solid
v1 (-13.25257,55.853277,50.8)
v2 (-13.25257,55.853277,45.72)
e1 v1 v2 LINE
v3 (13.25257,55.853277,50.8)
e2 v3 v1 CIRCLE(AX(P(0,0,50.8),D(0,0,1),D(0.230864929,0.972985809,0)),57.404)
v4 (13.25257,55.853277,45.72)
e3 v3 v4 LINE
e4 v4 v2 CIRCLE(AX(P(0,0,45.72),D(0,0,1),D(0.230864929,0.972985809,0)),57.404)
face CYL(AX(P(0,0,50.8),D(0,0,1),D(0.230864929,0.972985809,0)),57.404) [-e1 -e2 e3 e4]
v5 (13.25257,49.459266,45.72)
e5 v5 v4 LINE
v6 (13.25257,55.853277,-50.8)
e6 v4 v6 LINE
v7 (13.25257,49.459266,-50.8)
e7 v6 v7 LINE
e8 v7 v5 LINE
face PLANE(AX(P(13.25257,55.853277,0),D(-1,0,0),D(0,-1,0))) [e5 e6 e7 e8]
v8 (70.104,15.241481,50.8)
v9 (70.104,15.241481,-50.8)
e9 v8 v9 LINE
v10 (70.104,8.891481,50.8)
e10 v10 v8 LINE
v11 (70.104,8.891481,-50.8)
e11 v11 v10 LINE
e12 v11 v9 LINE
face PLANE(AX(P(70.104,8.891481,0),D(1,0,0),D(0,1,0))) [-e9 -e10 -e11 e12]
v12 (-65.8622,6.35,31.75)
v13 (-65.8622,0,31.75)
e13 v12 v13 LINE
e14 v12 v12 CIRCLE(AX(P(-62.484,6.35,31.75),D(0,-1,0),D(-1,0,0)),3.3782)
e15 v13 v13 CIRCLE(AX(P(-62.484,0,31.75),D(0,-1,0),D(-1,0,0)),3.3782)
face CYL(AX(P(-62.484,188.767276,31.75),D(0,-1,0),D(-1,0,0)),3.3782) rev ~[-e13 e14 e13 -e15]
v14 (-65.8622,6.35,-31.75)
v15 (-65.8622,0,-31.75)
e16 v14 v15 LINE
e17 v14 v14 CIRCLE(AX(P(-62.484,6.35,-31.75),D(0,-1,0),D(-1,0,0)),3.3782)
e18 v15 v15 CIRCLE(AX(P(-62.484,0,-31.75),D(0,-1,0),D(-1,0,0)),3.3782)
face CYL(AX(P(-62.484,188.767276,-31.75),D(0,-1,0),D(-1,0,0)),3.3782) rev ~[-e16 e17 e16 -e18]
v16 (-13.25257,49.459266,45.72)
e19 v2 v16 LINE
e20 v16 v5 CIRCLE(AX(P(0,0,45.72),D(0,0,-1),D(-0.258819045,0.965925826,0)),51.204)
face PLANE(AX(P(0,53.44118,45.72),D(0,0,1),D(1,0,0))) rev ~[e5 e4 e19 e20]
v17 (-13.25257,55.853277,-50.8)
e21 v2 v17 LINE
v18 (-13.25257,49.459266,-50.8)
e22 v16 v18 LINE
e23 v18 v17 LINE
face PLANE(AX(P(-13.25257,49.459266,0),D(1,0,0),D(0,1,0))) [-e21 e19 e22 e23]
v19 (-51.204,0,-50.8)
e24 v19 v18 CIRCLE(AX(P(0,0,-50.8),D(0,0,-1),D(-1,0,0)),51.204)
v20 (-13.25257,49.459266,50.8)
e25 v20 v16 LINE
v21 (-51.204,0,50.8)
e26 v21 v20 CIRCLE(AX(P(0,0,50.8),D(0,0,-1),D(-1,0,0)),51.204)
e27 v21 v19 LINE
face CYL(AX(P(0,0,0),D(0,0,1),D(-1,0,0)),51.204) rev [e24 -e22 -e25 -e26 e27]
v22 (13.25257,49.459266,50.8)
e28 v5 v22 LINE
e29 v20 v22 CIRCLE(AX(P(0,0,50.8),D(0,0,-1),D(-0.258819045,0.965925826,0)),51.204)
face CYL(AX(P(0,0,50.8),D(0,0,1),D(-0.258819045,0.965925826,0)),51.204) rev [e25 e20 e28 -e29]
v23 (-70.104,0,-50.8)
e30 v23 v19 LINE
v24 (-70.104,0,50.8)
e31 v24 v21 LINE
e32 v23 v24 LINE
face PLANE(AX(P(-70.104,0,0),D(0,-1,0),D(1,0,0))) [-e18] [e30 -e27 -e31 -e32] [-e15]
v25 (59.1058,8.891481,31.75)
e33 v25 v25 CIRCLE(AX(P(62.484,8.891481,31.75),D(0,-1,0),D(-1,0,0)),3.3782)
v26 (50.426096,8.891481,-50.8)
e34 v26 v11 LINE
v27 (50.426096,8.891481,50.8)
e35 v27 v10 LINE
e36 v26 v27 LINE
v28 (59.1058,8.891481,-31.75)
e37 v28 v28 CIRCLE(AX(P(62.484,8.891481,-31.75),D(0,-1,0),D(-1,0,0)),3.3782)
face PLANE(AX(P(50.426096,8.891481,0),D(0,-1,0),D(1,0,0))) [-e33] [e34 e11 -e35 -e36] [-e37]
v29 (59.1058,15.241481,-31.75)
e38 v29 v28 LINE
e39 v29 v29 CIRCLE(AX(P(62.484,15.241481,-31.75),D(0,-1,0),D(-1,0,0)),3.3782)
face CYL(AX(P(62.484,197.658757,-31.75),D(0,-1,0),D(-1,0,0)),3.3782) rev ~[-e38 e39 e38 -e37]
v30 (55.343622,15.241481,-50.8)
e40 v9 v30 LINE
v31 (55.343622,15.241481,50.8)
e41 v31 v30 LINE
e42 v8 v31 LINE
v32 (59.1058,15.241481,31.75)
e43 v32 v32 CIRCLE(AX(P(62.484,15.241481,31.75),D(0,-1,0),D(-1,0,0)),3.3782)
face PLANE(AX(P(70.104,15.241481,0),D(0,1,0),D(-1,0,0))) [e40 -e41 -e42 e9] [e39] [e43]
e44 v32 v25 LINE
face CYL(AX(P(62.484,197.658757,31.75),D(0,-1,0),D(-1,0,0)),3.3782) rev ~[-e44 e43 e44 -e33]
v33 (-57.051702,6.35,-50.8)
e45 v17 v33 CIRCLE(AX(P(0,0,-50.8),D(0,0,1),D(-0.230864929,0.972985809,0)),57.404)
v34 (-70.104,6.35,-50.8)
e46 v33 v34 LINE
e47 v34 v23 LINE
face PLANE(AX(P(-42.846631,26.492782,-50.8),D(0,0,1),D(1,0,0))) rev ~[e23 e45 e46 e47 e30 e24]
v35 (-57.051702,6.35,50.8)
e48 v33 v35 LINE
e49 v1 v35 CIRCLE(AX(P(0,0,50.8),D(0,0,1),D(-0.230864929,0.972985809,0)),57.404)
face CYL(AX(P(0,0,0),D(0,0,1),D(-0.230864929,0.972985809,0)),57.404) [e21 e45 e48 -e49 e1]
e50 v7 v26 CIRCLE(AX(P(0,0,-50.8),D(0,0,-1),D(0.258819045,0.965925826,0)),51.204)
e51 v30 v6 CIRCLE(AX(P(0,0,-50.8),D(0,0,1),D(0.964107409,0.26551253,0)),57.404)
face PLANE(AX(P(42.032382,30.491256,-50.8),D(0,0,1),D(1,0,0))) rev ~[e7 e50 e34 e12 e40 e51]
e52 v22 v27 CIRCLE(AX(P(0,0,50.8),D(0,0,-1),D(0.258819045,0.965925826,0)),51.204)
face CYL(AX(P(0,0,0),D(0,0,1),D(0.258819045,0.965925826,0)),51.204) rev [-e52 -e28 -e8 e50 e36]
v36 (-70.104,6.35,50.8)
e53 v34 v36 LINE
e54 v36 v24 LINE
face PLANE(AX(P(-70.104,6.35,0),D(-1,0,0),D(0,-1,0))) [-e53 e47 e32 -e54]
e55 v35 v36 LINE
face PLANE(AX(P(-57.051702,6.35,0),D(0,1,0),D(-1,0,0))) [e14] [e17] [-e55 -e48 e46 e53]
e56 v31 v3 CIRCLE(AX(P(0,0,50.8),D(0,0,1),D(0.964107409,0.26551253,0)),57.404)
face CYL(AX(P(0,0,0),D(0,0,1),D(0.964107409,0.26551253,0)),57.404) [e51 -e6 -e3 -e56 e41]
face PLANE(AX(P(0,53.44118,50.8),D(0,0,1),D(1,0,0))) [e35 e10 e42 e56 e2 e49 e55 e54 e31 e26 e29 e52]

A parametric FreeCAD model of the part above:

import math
import FreeCAD as App
import Part
import Sketcher
Q = App.Units.Quantity

doc = App.newDocument("Part")
params = doc.addObject("Spreadsheet::Sheet", "Params")
for row, (alias, value) in enumerate([
    ("sketch1_radius", "2.26 in"),
    ("sketch1_height", "0.25 in"),
    ("pad1_length", "4 in"),
    ("sketch2_radius", "2.26 in"),
    ("sketch2_height", "0.25 in"),
    ("pad2_length", "4 in"),
    ("sketch3_radius", "2.26 in"),
    ("pad3_length", "0.2 in"),
    ("sketch4_diameter", "0.266 in"),
    ("hole_diameter", "0.266 in"),
    ("sketch5_diameter", "0.266 in"),
    ("hole2_diameter", "0.266 in"),
], start=1):
    params.set(f"A{row}", alias)
    params.set(f"B{row}", "=" + value)
    params.setAlias(f"B{row}", alias)

body = doc.addObject("PartDesign::Body", "Body")

# Sketch on XY plane
sketch1 = doc.addObject("Sketcher::SketchObject", "Sketch")
body.addObject(sketch1)
sketch1.AttachmentSupport = (doc.XY_Plane, [""])
sketch1.MapMode = "FlatFace"
sketch1.addGeometry(Part.ArcOfCircle(Part.Circle(App.Vector(0, 0, 0), App.Vector(0, 0, 1), 57), math.radians(103), math.radians(174)), False)
sketch1.addGeometry(Part.LineSegment(App.Vector(-57, 6, 0), App.Vector(-70, 6, 0)), False)
sketch1.addGeometry(Part.LineSegment(App.Vector(-70, 6, 0), App.Vector(-70, 0, 0)), False)
sketch1.addGeometry(Part.LineSegment(App.Vector(-70, 0, 0), App.Vector(-51, 0, 0)), False)
sketch1.addGeometry(Part.ArcOfCircle(Part.Circle(App.Vector(0, 0, 0), App.Vector(0, 0, 1), 51), math.radians(105), math.radians(180)), False)
sketch1.addGeometry(Part.LineSegment(App.Vector(-13, 49, 0), App.Vector(-13, 56, 0)), False)
sketch1.addConstraint(Sketcher.Constraint("Coincident", 0, 2, 1, 1))
sketch1.addConstraint(Sketcher.Constraint("Coincident", 1, 2, 2, 1))
sketch1.addConstraint(Sketcher.Constraint("Coincident", 2, 2, 3, 1))
sketch1.addConstraint(Sketcher.Constraint("Coincident", 3, 2, 4, 2))
sketch1.addConstraint(Sketcher.Constraint("Coincident", 4, 1, 5, 1))
sketch1.addConstraint(Sketcher.Constraint("Coincident", 5, 2, 0, 1))
sketch1.addConstraint(Sketcher.Constraint("Horizontal", 1))
sketch1.addConstraint(Sketcher.Constraint("Vertical", 2))
sketch1.addConstraint(Sketcher.Constraint("Horizontal", 3))
sketch1.addConstraint(Sketcher.Constraint("Vertical", 5))
sketch1.addConstraint(Sketcher.Constraint("Coincident", 0, 3, -1, 1))
sketch1.addConstraint(Sketcher.Constraint("Coincident", 4, 3, -1, 1))
sketch1.addConstraint(Sketcher.Constraint("PointOnObject", 2, 2, -1))
sketch1.addConstraint(Sketcher.Constraint("Radius", 0, Q("2.26 in")))
sketch1.addConstraint(Sketcher.Constraint("DistanceY", 2, 2, 2, 1, Q("0.25 in")))
sketch1.addConstraint(Sketcher.Constraint("DistanceX", 1, 2, -1, 1, Q("2.76 in")))
sketch1.addConstraint(Sketcher.Constraint("Radius", 4, Q("51.204 mm")))
sketch1.addConstraint(Sketcher.Constraint("DistanceY", 5, 1, 5, 2, Q("6.394011 mm")))
sketch1.setExpression("Constraints[13]", "Params.sketch1_radius")
sketch1.setExpression("Constraints[14]", "Params.sketch1_height")
pad1 = doc.addObject("PartDesign::Pad", "Pad")
body.addObject(pad1)
pad1.Profile = sketch1
pad1.setExpression("Length", "Params.pad1_length")
pad1.Midplane = True
body2 = doc.addObject("PartDesign::Body", "Body001")

# Sketch on XY plane
sketch2 = doc.addObject("Sketcher::SketchObject", "Sketch001")
body2.addObject(sketch2)
sketch2.AttachmentSupport = (doc.getObject("XY_Plane001"), [""])
sketch2.MapMode = "FlatFace"
sketch2.addGeometry(Part.LineSegment(App.Vector(13, 56, 0), App.Vector(13, 49, 0)), False)
sketch2.addGeometry(Part.ArcOfCircle(Part.Circle(App.Vector(0, 0, 0), App.Vector(0, 0, 1), 51), math.radians(10), math.radians(75)), False)
sketch2.addGeometry(Part.LineSegment(App.Vector(50, 9, 0), App.Vector(70, 9, 0)), False)
sketch2.addGeometry(Part.LineSegment(App.Vector(70, 9, 0), App.Vector(70, 15, 0)), False)
sketch2.addGeometry(Part.LineSegment(App.Vector(70, 15, 0), App.Vector(55, 15, 0)), False)
sketch2.addGeometry(Part.ArcOfCircle(Part.Circle(App.Vector(0, 0, 0), App.Vector(0, 0, 1), 57), math.radians(15), math.radians(77)), False)
sketch2.addConstraint(Sketcher.Constraint("Coincident", 0, 2, 1, 2))
sketch2.addConstraint(Sketcher.Constraint("Coincident", 1, 1, 2, 1))
sketch2.addConstraint(Sketcher.Constraint("Coincident", 2, 2, 3, 1))
sketch2.addConstraint(Sketcher.Constraint("Coincident", 3, 2, 4, 1))
sketch2.addConstraint(Sketcher.Constraint("Coincident", 4, 2, 5, 1))
sketch2.addConstraint(Sketcher.Constraint("Coincident", 5, 2, 0, 1))
sketch2.addConstraint(Sketcher.Constraint("Vertical", 0))
sketch2.addConstraint(Sketcher.Constraint("Horizontal", 2))
sketch2.addConstraint(Sketcher.Constraint("Vertical", 3))
sketch2.addConstraint(Sketcher.Constraint("Horizontal", 4))
sketch2.addConstraint(Sketcher.Constraint("Coincident", 1, 3, -1, 1))
sketch2.addConstraint(Sketcher.Constraint("Coincident", 5, 3, -1, 1))
sketch2.addConstraint(Sketcher.Constraint("Radius", 5, Q("2.26 in")))
sketch2.addConstraint(Sketcher.Constraint("DistanceY", 3, 1, 3, 2, Q("0.25 in")))
sketch2.addConstraint(Sketcher.Constraint("DistanceX", -1, 1, 2, 2, Q("2.76 in")))
sketch2.addConstraint(Sketcher.Constraint("Radius", 1, Q("51.204 mm")))
sketch2.addConstraint(Sketcher.Constraint("DistanceX", 4, 2, 4, 1, Q("14.760378 mm")))
sketch2.addConstraint(Sketcher.Constraint("DistanceY", 0, 2, 0, 1, Q("6.394011 mm")))
sketch2.setExpression("Constraints[12]", "Params.sketch2_radius")
sketch2.setExpression("Constraints[13]", "Params.sketch2_height")
pad2 = doc.addObject("PartDesign::Pad", "Pad001")
body2.addObject(pad2)
pad2.Profile = sketch2
pad2.setExpression("Length", "Params.pad2_length")
pad2.Midplane = True
body.AllowCompound = True
doc.recompute()

boolean = doc.addObject("PartDesign::Boolean", "Boolean")
body.addObject(boolean)
boolean.Type = "Fuse"
boolean.addObjects([body2])

# Sketch on XY plane
sketch3 = doc.addObject("Sketcher::SketchObject", "Sketch002")
body.addObject(sketch3)
sketch3.AttachmentSupport = (doc.XY_Plane, [""])
sketch3.MapMode = "FlatFace"
sketch3.AttachmentOffset = App.Placement(App.Vector(0, 0, 2 * 25.4), App.Rotation())
sketch3.addGeometry(Part.LineSegment(App.Vector(-13, 56, 0), App.Vector(-13, 49, 0)), False)
sketch3.addGeometry(Part.ArcOfCircle(Part.Circle(App.Vector(0, 0, 0), App.Vector(0, 0, 1), 51), math.radians(75), math.radians(105)), False)
sketch3.addGeometry(Part.LineSegment(App.Vector(13, 49, 0), App.Vector(13, 56, 0)), False)
sketch3.addGeometry(Part.ArcOfCircle(Part.Circle(App.Vector(0, 0, 0), App.Vector(0, 0, 1), 57), math.radians(77), math.radians(103)), False)
sketch3.addConstraint(Sketcher.Constraint("Coincident", 0, 2, 1, 2))
sketch3.addConstraint(Sketcher.Constraint("Coincident", 1, 1, 2, 1))
sketch3.addConstraint(Sketcher.Constraint("Coincident", 2, 2, 3, 1))
sketch3.addConstraint(Sketcher.Constraint("Coincident", 3, 2, 0, 1))
sketch3.addConstraint(Sketcher.Constraint("Vertical", 0))
sketch3.addConstraint(Sketcher.Constraint("Vertical", 2))
sketch3.addConstraint(Sketcher.Constraint("Coincident", 1, 3, -1, 1))
sketch3.addConstraint(Sketcher.Constraint("Coincident", 3, 3, -1, 1))
sketch3.addConstraint(Sketcher.Constraint("Horizontal", 0, 2, 1, 1))
sketch3.addConstraint(Sketcher.Constraint("Radius", 3, Q("2.26 in")))
sketch3.addConstraint(Sketcher.Constraint("Radius", 1, Q("51.204 mm")))
sketch3.addConstraint(Sketcher.Constraint("DistanceY", 0, 2, 0, 1, Q("6.394011 mm")))
sketch3.setExpression("Constraints[9]", "Params.sketch3_radius")
pad3 = doc.addObject("PartDesign::Pad", "Pad002")
body.addObject(pad3)
pad3.Profile = sketch3
pad3.setExpression("Length", "Params.pad3_length")
pad3.Reversed = True

# Sketch on XZ plane
sketch4 = doc.addObject("Sketcher::SketchObject", "Sketch003")
body.addObject(sketch4)
sketch4.AttachmentSupport = (doc.XZ_Plane, [""])
sketch4.MapMode = "FlatFace"
sketch4.AttachmentOffset = App.Placement(App.Vector(0, 0, -0.25 * 25.4), App.Rotation())
sketch4.addGeometry(Part.Circle(App.Vector(-62.5, 31.8, 0), App.Vector(0, 0, 1), 3.4), False)
sketch4.addGeometry(Part.Circle(App.Vector(-62.5, -31.8, 0), App.Vector(0, 0, 1), 3.4), False)
sketch4.addConstraint(Sketcher.Constraint("Equal", 0, 1))
sketch4.addConstraint(Sketcher.Constraint("Symmetric", 0, 3, 1, 3, -1))
sketch4.addConstraint(Sketcher.Constraint("Diameter", 0, Q("0.266 in")))
sketch4.addConstraint(Sketcher.Constraint("DistanceY", 1, 3, 0, 3, Q("2.5 in")))
sketch4.addConstraint(Sketcher.Constraint("DistanceX", 0, 3, -1, 1, Q("2.46 in")))
sketch4.setExpression("Constraints[2]", "Params.sketch4_diameter")
doc.recompute()
hole = doc.addObject("PartDesign::Hole", "Hole")
body.addObject(hole)
hole.Profile = sketch4
hole.ThreadType = "None"
hole.setExpression("Diameter", "Params.hole_diameter")
hole.DepthType = "ThroughAll"
hole.Reversed = True

# Sketch on XZ plane
sketch5 = doc.addObject("Sketcher::SketchObject", "Sketch004")
body.addObject(sketch5)
sketch5.AttachmentSupport = (doc.XZ_Plane, [""])
sketch5.MapMode = "FlatFace"
sketch5.AttachmentOffset = App.Placement(App.Vector(0, 0, -15.241481), App.Rotation())
sketch5.addGeometry(Part.Circle(App.Vector(62.5, 31.8, 0), App.Vector(0, 0, 1), 3.4), False)
sketch5.addGeometry(Part.Circle(App.Vector(62.5, -31.8, 0), App.Vector(0, 0, 1), 3.4), False)
sketch5.addConstraint(Sketcher.Constraint("Equal", 0, 1))
sketch5.addConstraint(Sketcher.Constraint("Symmetric", 0, 3, 1, 3, -1))
sketch5.addConstraint(Sketcher.Constraint("Diameter", 0, Q("0.266 in")))
sketch5.addConstraint(Sketcher.Constraint("DistanceY", 1, 3, 0, 3, Q("2.5 in")))
sketch5.addConstraint(Sketcher.Constraint("DistanceX", -1, 1, 0, 3, Q("2.46 in")))
sketch5.setExpression("Constraints[2]", "Params.sketch5_diameter")
doc.recompute()
hole2 = doc.addObject("PartDesign::Hole", "Hole001")
body.addObject(hole2)
hole2.Profile = sketch5
hole2.ThreadType = "None"
hole2.setExpression("Diameter", "Params.hole2_diameter")
hole2.DepthType = "ThroughAll"
hole2.Reversed = True

doc.recompute()
